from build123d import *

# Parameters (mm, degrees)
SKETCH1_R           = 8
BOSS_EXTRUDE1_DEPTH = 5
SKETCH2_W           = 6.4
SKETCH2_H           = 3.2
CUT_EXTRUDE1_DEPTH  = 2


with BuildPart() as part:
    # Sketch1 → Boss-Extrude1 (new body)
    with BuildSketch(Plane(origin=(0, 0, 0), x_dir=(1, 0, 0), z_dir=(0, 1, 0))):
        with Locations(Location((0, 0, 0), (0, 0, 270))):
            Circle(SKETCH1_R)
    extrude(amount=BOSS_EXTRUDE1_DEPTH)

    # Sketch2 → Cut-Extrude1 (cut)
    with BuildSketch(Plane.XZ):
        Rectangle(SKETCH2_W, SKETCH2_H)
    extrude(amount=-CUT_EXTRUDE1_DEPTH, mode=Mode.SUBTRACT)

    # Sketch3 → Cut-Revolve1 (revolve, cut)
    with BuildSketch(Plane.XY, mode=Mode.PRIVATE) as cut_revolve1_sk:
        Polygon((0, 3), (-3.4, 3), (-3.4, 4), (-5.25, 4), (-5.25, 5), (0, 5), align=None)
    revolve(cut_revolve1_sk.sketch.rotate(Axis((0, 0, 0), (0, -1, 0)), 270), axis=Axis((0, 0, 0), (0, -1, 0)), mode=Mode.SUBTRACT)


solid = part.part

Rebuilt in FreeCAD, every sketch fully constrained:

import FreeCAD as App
import Part
import Sketcher
from FreeCAD import Vector

doc = App.newDocument("Part")
body = doc.addObject("PartDesign::Body", "Body")

# Sketch on XZ plane
sketch1 = doc.addObject("Sketcher::SketchObject", "Sketch")
body.addObject(sketch1)
sketch1.AttachmentSupport = (doc.XZ_Plane, [""])
sketch1.MapMode = "FlatFace"
sketch1.addGeometry(Part.Circle(Vector(0, 0, 0), Vector(0, 0, 1), 8), False)
sketch1.addConstraint(Sketcher.Constraint("Coincident", 0, 3, -1, 1))
sketch1.addConstraint(Sketcher.Constraint("Diameter", 0, 16.0))
pad1 = doc.addObject("PartDesign::Pad", "Pad")
body.addObject(pad1)
pad1.Profile = sketch1
pad1.Length = 5
pad1.Reversed = True

# Sketch on XZ plane
sketch2 = doc.addObject("Sketcher::SketchObject", "Sketch001")
body.addObject(sketch2)
sketch2.AttachmentSupport = (doc.XZ_Plane, [""])
sketch2.MapMode = "FlatFace"
sketch2.addGeometry(Part.LineSegment(Vector(-3.2, 1.6, 0), Vector(-3.2, -1.6, 0)), False)
sketch2.addGeometry(Part.LineSegment(Vector(-3.2, -1.6, 0), Vector(3.2, -1.6, 0)), False)
sketch2.addGeometry(Part.LineSegment(Vector(3.2, -1.6, 0), Vector(3.2, 1.6, 0)), False)
sketch2.addGeometry(Part.LineSegment(Vector(3.2, 1.6, 0), Vector(-3.2, 1.6, 0)), False)
sketch2.addConstraint(Sketcher.Constraint("Coincident", 0, 2, 1, 1))
sketch2.addConstraint(Sketcher.Constraint("Coincident", 1, 2, 2, 1))
sketch2.addConstraint(Sketcher.Constraint("Coincident", 2, 2, 3, 1))
sketch2.addConstraint(Sketcher.Constraint("Coincident", 3, 2, 0, 1))
sketch2.addConstraint(Sketcher.Constraint("Vertical", 0))
sketch2.addConstraint(Sketcher.Constraint("Horizontal", 1))
sketch2.addConstraint(Sketcher.Constraint("Vertical", 2))
sketch2.addConstraint(Sketcher.Constraint("Horizontal", 3))
sketch2.addConstraint(Sketcher.Constraint("Symmetric", 0, 2, 2, 2, -1, 1))
sketch2.addConstraint(Sketcher.Constraint("DistanceX", 1, 1, 1, 2, 6.4))
sketch2.addConstraint(Sketcher.Constraint("DistanceY", 0, 2, 0, 1, 3.2))
pocket1 = doc.addObject("PartDesign::Pocket", "Pocket")
body.addObject(pocket1)
pocket1.Profile = sketch2
pocket1.Length = 2

# Sketch on XY plane
sketch3 = doc.addObject("Sketcher::SketchObject", "Sketch002")
body.addObject(sketch3)
sketch3.AttachmentSupport = (doc.XY_Plane, [""])
sketch3.MapMode = "FlatFace"
sketch3.addGeometry(Part.LineSegment(Vector(-3.4, 3, 0), Vector(0, 3, 0)), False)
sketch3.addGeometry(Part.LineSegment(Vector(0, 3, 0), Vector(0, 5, 0)), False)
sketch3.addGeometry(Part.LineSegment(Vector(0, 5, 0), Vector(-5.2, 5, 0)), False)
sketch3.addGeometry(Part.LineSegment(Vector(-5.2, 5, 0), Vector(-5.2, 4, 0)), False)
sketch3.addGeometry(Part.LineSegment(Vector(-5.2, 4, 0), Vector(-3.4, 4, 0)), False)
sketch3.addGeometry(Part.LineSegment(Vector(-3.4, 4, 0), Vector(-3.4, 3, 0)), False)
sketch3.addConstraint(Sketcher.Constraint("Coincident", 0, 2, 1, 1))
sketch3.addConstraint(Sketcher.Constraint("Coincident", 1, 2, 2, 1))
sketch3.addConstraint(Sketcher.Constraint("Coincident", 2, 2, 3, 1))
sketch3.addConstraint(Sketcher.Constraint("Coincident", 3, 2, 4, 1))
sketch3.addConstraint(Sketcher.Constraint("Coincident", 4, 2, 5, 1))
sketch3.addConstraint(Sketcher.Constraint("Coincident", 5, 2, 0, 1))
sketch3.addConstraint(Sketcher.Constraint("Horizontal", 0))
sketch3.addConstraint(Sketcher.Constraint("Vertical", 1))
sketch3.addConstraint(Sketcher.Constraint("Horizontal", 2))
sketch3.addConstraint(Sketcher.Constraint("Vertical", 3))
sketch3.addConstraint(Sketcher.Constraint("Horizontal", 4))
sketch3.addConstraint(Sketcher.Constraint("Vertical", 5))
sketch3.addConstraint(Sketcher.Constraint("PointOnObject", 0, 2, -2))
sketch3.addConstraint(Sketcher.Constraint("Equal", 3, 5))
sketch3.addConstraint(Sketcher.Constraint("DistanceY", 1, 1, 1, 2, 2.0))
sketch3.addConstraint(Sketcher.Constraint("DistanceX", 0, 1, 0, 2, 3.4))
sketch3.addConstraint(Sketcher.Constraint("DistanceY", -1, 1, 0, 2, 3.0))
sketch3.addConstraint(Sketcher.Constraint("DistanceX", 2, 2, 2, 1, 5.25))
groove = doc.addObject("PartDesign::Groove", "Groove")
body.addObject(groove)
groove.Profile = sketch3
groove.ReferenceAxis = (sketch3, ["V_Axis"])
groove.Angle = 360

doc.recompute()
